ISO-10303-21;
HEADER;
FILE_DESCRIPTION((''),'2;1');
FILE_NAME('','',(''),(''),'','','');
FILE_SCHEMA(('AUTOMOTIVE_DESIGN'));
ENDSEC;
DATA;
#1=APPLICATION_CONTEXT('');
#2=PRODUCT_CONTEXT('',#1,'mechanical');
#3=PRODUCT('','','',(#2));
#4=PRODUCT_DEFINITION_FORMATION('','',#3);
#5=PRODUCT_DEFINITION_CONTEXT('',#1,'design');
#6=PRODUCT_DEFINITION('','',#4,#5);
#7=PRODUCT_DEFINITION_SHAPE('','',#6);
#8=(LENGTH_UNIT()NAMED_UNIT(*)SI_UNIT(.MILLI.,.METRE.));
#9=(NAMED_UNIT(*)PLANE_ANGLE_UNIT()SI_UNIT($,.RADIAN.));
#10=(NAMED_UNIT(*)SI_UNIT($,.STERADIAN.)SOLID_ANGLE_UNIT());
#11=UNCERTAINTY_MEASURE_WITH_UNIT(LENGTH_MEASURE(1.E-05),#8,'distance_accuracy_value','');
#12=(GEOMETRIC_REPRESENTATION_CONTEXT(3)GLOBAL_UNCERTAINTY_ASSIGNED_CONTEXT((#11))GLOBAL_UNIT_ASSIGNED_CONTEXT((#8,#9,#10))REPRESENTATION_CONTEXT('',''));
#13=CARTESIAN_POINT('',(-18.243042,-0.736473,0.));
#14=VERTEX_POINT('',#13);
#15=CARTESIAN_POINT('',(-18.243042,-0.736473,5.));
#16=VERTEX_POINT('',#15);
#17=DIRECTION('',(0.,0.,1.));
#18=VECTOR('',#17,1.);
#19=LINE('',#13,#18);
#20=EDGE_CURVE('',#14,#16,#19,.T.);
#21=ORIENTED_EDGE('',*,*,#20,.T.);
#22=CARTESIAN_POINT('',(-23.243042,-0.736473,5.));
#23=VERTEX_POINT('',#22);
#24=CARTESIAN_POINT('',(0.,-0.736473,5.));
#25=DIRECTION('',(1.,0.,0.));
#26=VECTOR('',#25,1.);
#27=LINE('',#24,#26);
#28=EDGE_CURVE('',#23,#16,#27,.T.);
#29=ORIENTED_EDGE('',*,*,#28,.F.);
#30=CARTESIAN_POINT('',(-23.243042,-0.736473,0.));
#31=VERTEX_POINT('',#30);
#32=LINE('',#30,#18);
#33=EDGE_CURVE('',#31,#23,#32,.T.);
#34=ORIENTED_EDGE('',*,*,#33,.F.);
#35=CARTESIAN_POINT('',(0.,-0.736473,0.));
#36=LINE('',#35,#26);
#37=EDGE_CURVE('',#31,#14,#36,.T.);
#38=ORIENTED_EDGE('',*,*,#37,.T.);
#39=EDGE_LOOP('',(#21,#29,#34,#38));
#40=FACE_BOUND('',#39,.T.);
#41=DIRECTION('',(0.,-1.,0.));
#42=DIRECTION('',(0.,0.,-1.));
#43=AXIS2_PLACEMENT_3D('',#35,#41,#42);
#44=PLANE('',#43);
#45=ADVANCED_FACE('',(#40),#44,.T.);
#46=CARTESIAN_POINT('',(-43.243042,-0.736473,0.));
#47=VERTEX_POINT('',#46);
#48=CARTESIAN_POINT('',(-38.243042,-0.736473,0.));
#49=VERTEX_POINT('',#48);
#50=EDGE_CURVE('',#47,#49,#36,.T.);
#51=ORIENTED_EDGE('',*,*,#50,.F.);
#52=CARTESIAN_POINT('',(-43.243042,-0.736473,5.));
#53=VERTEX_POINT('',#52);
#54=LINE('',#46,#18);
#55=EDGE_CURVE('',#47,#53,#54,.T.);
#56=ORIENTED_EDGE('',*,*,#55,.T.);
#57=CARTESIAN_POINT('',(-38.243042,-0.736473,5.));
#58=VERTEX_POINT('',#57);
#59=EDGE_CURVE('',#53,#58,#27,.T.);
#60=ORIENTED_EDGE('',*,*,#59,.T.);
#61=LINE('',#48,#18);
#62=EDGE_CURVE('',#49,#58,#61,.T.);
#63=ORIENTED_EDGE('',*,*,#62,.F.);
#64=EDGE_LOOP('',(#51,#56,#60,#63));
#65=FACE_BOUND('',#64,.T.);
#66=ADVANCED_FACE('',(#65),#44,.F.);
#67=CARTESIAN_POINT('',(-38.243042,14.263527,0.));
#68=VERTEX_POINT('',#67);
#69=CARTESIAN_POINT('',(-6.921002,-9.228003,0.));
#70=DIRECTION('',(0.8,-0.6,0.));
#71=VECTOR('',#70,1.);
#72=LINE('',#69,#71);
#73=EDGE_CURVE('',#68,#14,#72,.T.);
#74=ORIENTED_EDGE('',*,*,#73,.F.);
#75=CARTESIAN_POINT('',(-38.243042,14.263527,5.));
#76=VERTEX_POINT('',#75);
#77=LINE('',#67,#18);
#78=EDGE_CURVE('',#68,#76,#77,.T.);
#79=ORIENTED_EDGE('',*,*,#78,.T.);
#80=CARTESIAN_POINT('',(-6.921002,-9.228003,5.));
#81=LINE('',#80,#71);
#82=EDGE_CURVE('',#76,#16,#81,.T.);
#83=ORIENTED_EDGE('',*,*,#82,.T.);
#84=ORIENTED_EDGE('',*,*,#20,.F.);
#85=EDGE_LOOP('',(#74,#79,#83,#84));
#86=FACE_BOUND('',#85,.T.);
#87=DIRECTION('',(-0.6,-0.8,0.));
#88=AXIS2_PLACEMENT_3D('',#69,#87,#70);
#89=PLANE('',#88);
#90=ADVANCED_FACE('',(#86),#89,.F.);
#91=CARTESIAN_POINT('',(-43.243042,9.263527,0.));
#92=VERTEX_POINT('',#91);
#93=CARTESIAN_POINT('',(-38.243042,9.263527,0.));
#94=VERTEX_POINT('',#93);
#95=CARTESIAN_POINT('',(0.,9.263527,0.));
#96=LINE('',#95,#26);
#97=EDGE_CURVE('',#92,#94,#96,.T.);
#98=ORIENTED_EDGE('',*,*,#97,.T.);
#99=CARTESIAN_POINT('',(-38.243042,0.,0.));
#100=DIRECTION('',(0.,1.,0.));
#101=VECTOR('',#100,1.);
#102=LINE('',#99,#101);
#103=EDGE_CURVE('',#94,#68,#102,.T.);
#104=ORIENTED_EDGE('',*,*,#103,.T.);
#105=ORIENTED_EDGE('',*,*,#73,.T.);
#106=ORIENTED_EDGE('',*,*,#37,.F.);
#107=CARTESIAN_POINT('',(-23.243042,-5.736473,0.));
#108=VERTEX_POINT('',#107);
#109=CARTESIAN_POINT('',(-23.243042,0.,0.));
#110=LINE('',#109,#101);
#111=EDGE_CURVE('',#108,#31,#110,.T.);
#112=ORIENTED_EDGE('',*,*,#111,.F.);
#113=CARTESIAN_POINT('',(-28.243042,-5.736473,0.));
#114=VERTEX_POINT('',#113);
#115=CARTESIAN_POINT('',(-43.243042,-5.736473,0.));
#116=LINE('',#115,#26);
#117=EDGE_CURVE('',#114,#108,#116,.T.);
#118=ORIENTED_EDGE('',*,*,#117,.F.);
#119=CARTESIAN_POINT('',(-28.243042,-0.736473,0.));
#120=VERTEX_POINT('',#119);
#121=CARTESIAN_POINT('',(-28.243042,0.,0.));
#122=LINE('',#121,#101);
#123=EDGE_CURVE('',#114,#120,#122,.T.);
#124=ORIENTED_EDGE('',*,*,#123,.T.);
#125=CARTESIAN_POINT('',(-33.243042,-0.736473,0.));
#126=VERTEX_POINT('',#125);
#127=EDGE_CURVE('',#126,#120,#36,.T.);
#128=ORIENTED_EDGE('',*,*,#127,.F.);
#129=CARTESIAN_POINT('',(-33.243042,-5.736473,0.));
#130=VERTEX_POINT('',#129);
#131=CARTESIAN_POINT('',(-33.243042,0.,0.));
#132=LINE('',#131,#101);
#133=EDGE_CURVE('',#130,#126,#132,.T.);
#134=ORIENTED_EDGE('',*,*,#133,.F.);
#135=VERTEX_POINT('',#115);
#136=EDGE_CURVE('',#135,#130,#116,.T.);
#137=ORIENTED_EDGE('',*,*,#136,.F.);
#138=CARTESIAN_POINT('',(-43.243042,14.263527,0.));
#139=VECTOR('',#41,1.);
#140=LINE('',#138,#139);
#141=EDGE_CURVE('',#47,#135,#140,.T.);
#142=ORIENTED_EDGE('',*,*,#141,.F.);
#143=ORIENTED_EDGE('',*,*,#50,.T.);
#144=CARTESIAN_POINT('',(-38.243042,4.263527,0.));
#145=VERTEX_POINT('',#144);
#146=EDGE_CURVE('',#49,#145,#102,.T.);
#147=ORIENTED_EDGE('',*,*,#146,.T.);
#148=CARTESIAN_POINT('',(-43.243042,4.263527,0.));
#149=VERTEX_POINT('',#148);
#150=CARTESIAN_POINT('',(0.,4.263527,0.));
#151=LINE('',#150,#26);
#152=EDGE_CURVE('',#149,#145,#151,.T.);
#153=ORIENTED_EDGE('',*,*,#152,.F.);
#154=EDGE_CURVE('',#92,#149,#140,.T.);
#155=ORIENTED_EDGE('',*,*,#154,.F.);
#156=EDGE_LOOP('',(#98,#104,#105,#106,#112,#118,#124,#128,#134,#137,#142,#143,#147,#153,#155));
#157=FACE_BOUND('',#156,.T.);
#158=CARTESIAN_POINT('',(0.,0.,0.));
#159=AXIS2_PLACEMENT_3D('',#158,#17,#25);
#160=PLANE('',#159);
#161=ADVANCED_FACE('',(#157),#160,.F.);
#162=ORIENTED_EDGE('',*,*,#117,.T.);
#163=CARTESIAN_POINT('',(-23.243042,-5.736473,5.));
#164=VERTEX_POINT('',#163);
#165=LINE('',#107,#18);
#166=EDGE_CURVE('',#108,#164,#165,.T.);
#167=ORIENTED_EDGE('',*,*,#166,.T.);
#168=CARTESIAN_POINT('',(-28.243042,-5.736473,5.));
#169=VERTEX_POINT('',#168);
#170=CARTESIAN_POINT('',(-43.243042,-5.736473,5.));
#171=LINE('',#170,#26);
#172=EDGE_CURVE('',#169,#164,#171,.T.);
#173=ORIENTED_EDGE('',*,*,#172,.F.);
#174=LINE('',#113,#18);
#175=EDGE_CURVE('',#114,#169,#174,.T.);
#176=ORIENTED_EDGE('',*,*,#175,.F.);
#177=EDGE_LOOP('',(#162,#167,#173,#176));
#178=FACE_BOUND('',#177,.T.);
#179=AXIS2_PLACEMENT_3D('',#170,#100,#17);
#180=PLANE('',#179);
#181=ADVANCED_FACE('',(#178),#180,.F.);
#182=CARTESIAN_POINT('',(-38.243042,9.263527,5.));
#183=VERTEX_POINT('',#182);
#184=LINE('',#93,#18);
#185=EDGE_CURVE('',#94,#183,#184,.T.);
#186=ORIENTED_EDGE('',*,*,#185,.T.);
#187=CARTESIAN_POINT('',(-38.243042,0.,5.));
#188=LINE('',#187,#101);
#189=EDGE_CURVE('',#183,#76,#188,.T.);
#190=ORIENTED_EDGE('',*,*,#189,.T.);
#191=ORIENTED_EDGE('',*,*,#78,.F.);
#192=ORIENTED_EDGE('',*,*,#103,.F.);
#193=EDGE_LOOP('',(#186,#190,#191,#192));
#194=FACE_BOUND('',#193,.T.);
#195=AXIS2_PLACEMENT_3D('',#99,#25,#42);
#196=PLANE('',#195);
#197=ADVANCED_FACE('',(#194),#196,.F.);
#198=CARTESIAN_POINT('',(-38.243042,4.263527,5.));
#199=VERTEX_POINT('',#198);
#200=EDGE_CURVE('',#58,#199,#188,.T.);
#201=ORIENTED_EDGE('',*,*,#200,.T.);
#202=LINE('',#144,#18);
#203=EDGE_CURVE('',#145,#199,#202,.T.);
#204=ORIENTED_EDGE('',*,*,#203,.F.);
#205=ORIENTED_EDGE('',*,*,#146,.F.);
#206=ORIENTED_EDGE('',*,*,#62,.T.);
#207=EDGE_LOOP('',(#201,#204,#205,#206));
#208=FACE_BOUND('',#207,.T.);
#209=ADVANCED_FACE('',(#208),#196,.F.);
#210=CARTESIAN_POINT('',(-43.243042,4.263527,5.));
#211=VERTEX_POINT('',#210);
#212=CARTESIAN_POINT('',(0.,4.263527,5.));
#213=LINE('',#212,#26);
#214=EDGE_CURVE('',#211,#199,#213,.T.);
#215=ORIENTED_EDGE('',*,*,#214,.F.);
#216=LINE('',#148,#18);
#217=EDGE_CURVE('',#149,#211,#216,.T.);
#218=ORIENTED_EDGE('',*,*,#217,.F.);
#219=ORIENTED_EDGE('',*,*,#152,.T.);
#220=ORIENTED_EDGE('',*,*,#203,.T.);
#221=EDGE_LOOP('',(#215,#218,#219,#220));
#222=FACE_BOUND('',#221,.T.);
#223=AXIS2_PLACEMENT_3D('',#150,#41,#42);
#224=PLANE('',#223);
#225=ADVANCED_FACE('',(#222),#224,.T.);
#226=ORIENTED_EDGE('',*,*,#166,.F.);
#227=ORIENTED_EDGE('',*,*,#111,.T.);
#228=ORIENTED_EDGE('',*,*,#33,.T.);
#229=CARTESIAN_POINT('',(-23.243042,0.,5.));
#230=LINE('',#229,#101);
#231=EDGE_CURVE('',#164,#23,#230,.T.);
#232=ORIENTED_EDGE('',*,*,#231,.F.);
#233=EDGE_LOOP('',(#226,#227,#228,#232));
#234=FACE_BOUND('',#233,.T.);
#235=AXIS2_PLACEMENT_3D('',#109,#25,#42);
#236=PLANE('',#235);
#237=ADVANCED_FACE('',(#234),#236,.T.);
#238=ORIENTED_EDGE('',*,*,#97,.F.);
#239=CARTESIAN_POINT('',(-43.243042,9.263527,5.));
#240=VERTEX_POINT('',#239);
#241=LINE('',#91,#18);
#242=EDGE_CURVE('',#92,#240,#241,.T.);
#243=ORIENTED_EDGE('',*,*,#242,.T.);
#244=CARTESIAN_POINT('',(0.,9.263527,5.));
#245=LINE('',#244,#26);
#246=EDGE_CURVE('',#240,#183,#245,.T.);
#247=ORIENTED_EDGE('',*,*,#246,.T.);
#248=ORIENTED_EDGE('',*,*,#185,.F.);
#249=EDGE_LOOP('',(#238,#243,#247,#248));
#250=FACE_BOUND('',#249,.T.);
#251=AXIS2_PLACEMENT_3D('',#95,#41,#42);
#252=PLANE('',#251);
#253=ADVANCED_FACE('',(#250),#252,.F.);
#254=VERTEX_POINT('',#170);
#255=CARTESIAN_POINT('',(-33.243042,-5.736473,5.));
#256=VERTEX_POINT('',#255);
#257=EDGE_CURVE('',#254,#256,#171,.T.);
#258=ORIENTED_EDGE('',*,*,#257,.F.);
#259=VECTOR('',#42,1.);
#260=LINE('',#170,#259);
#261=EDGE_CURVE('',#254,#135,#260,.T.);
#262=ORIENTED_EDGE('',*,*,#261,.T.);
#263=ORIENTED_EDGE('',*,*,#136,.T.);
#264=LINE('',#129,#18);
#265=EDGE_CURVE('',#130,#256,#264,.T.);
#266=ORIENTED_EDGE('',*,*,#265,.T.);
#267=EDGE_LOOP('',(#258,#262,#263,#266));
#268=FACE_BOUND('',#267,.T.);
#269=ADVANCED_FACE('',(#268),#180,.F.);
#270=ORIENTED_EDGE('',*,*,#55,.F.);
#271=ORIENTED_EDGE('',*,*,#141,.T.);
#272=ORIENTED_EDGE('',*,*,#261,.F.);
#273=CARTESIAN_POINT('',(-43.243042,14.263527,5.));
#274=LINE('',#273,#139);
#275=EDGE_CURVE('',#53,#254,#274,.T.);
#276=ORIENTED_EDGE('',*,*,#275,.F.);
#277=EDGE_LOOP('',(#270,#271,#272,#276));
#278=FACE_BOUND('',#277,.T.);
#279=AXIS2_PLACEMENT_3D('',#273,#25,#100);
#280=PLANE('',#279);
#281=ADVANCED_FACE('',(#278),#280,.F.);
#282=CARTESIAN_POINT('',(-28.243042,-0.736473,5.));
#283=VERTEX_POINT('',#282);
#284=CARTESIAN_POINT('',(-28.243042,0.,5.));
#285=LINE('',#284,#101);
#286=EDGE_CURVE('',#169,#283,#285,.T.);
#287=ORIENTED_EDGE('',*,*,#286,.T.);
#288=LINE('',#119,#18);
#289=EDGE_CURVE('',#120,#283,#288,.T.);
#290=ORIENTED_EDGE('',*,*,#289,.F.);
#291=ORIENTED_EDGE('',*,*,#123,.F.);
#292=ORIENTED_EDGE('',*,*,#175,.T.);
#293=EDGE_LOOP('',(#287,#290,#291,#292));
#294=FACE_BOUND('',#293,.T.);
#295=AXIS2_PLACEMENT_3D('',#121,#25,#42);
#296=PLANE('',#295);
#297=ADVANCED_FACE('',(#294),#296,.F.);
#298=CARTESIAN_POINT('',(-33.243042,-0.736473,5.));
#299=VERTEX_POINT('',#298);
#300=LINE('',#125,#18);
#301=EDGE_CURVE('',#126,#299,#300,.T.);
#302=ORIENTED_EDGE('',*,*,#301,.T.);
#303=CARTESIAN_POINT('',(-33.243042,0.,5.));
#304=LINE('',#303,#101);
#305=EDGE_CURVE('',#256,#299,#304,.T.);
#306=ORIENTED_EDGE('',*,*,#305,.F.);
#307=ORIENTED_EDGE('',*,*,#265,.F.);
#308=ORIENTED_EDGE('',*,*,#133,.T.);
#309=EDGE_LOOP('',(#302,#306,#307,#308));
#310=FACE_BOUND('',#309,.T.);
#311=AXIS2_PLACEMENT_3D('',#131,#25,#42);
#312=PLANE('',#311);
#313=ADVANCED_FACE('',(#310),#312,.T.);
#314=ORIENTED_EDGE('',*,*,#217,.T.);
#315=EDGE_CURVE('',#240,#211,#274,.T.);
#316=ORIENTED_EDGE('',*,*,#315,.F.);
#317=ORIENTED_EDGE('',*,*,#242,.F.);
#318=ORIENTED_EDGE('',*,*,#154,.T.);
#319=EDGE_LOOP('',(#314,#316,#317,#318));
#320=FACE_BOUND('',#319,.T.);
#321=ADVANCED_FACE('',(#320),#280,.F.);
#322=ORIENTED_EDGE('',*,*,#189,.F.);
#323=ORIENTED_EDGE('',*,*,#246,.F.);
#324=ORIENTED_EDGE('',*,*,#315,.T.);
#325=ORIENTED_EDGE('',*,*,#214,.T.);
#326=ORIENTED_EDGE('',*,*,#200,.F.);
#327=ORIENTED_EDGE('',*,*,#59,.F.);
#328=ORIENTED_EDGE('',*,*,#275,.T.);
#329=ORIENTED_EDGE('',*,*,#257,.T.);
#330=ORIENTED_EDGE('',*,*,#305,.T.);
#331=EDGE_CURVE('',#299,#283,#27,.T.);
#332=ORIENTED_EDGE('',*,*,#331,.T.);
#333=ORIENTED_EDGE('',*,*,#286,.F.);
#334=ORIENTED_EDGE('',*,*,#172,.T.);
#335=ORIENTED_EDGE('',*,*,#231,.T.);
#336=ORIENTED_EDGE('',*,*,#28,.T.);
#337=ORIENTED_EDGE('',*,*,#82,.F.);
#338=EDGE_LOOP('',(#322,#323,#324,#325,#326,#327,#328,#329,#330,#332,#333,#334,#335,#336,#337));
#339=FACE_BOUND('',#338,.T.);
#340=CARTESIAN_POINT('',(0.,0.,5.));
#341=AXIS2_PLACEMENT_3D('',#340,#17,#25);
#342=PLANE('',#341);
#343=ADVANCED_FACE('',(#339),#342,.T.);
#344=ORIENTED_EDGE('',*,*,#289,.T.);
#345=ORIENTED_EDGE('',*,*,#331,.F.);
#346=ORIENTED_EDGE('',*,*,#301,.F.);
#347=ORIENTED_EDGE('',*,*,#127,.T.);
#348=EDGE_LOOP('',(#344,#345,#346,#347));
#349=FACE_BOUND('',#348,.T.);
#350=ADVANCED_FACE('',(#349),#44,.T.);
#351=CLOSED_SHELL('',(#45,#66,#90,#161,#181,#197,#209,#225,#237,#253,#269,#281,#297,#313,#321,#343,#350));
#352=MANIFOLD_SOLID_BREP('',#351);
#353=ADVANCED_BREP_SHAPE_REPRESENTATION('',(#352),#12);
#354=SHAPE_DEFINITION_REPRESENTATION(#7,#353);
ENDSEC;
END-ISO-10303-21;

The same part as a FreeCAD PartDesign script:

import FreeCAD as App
import Part
import Sketcher
Q = App.Units.Quantity

doc = App.newDocument("Part")
body = doc.addObject("PartDesign::Body", "Body")

# Sketch on XY plane
sketch1 = body.newObject("Sketcher::SketchObject", "Sketch")
sketch1.AttachmentSupport = (doc.getObject("XY_Plane"), [""])
sketch1.MapMode = "FlatFace"
sketch1.addGeometry([
    Part.LineSegment(App.Vector(-43, 14, 0), App.Vector(-43, -6, 0)),
    Part.LineSegment(App.Vector(-43, -6, 0), App.Vector(-18, -6, 0)),
    Part.LineSegment(App.Vector(-18, -6, 0), App.Vector(-18, 14, 0)),
    Part.LineSegment(App.Vector(-18, 14, 0), App.Vector(-43, 14, 0)),
], False)
sketch1.addConstraint([
    Sketcher.Constraint("Coincident", 0, 2, 1, 1),
    Sketcher.Constraint("Coincident", 1, 2, 2, 1),
    Sketcher.Constraint("Coincident", 2, 2, 3, 1),
    Sketcher.Constraint("Coincident", 3, 2, 0, 1),
    Sketcher.Constraint("Vertical", 0),
    Sketcher.Constraint("Horizontal", 1),
    Sketcher.Constraint("Vertical", 2),
    Sketcher.Constraint("Horizontal", 3),
    Sketcher.Constraint("DistanceX", 1, 1, 1, 2, Q("25 mm")),
    Sketcher.Constraint("DistanceY", 0, 2, 0, 1, Q("20 mm")),
    Sketcher.Constraint("DistanceX", 0, 2, -1, 1, Q("43.243042 mm")),
    Sketcher.Constraint("DistanceY", 0, 2, -1, 1, Q("5.736473 mm")),
])
pad1 = body.newObject("PartDesign::Pad", "Pad")
pad1.Profile = sketch1
pad1.Length = 5

# Sketch on XY plane
sketch2 = body.newObject("Sketcher::SketchObject", "Sketch001")
sketch2.AttachmentSupport = (doc.getObject("XY_Plane"), [""])
sketch2.MapMode = "FlatFace"
sketch2.AttachmentOffset = App.Placement(App.Vector(0, 0, 5), App.Rotation())
sketch2.addGeometry([
    Part.LineSegment(App.Vector(-38.2, 14.3, 0), App.Vector(-18.2, -0.7, 0)),  # 0
    Part.LineSegment(App.Vector(-18.2, -0.7, 0), App.Vector(-18.2, 14.3, 0)),  # 1
    Part.LineSegment(App.Vector(-18.2, 14.3, 0), App.Vector(-38.2, 14.3, 0)),  # 2
    Part.LineSegment(App.Vector(-43.2, 14.3, 0), App.Vector(-43.2, 9.3, 0)),  # 3
    Part.LineSegment(App.Vector(-43.2, 9.3, 0), App.Vector(-38.2, 9.3, 0)),  # 4
    Part.LineSegment(App.Vector(-38.2, 9.3, 0), App.Vector(-38.2, 14.3, 0)),  # 5
    Part.LineSegment(App.Vector(-38.2, 14.3, 0), App.Vector(-43.2, 14.3, 0)),  # 6
    Part.LineSegment(App.Vector(-43.2, 4.3, 0), App.Vector(-43.2, -0.7, 0)),  # 7
    Part.LineSegment(App.Vector(-43.2, -0.7, 0), App.Vector(-38.2, -0.7, 0)),  # 8
    Part.LineSegment(App.Vector(-38.2, -0.7, 0), App.Vector(-38.2, 4.3, 0)),  # 9
    Part.LineSegment(App.Vector(-38.2, 4.3, 0), App.Vector(-43.2, 4.3, 0)),  # 10
    Part.LineSegment(App.Vector(-33.2, -0.7, 0), App.Vector(-33.2, -5.7, 0)),  # 11
    Part.LineSegment(App.Vector(-33.2, -5.7, 0), App.Vector(-28.2, -5.7, 0)),  # 12
    Part.LineSegment(App.Vector(-28.2, -5.7, 0), App.Vector(-28.2, -0.7, 0)),  # 13
    Part.LineSegment(App.Vector(-28.2, -0.7, 0), App.Vector(-33.2, -0.7, 0)),  # 14
    Part.LineSegment(App.Vector(-23.2, -0.7, 0), App.Vector(-23.2, -5.7, 0)),  # 15
    Part.LineSegment(App.Vector(-23.2, -5.7, 0), App.Vector(-18.2, -5.7, 0)),  # 16
    Part.LineSegment(App.Vector(-18.2, -5.7, 0), App.Vector(-18.2, -0.7, 0)),  # 17
    Part.LineSegment(App.Vector(-18.2, -0.7, 0), App.Vector(-23.2, -0.7, 0)),  # 18
], False)
sketch2.addConstraint([
    Sketcher.Constraint("Coincident", 0, 2, 1, 1),
    Sketcher.Constraint("Coincident", 1, 2, 2, 1),
    Sketcher.Constraint("Coincident", 2, 2, 0, 1),
    Sketcher.Constraint("Coincident", 3, 2, 4, 1),
    Sketcher.Constraint("Coincident", 4, 2, 5, 1),
    Sketcher.Constraint("Coincident", 5, 2, 6, 1),
    Sketcher.Constraint("Coincident", 6, 2, 3, 1),
    Sketcher.Constraint("Coincident", 7, 2, 8, 1),
    Sketcher.Constraint("Coincident", 8, 2, 9, 1),
    Sketcher.Constraint("Coincident", 9, 2, 10, 1),
    Sketcher.Constraint("Coincident", 10, 2, 7, 1),
    Sketcher.Constraint("Coincident", 11, 2, 12, 1),
    Sketcher.Constraint("Coincident", 12, 2, 13, 1),
    Sketcher.Constraint("Coincident", 13, 2, 14, 1),
    Sketcher.Constraint("Coincident", 14, 2, 11, 1),
    Sketcher.Constraint("Coincident", 15, 2, 16, 1),
    Sketcher.Constraint("Coincident", 16, 2, 17, 1),
    Sketcher.Constraint("Coincident", 17, 2, 18, 1),
    Sketcher.Constraint("Coincident", 18, 2, 15, 1),
    Sketcher.Constraint("Vertical", 1),
    Sketcher.Constraint("Horizontal", 2),
    Sketcher.Constraint("Vertical", 3),
    Sketcher.Constraint("Horizontal", 4),
    Sketcher.Constraint("Vertical", 5),
    Sketcher.Constraint("Horizontal", 6),
    Sketcher.Constraint("Vertical", 7),
    Sketcher.Constraint("Horizontal", 8),
    Sketcher.Constraint("Vertical", 9),
    Sketcher.Constraint("Horizontal", 10),
    Sketcher.Constraint("Vertical", 11),
    Sketcher.Constraint("Horizontal", 12),
    Sketcher.Constraint("Vertical", 13),
    Sketcher.Constraint("Horizontal", 14),
    Sketcher.Constraint("Vertical", 15),
    Sketcher.Constraint("Horizontal", 16),
    Sketcher.Constraint("Vertical", 17),
    Sketcher.Constraint("Horizontal", 18),
    Sketcher.Constraint("Coincident", 5, 2, 2, 2),
    Sketcher.Constraint("Coincident", 17, 2, 0, 2),
    Sketcher.Constraint("Horizontal", 0, 2, 7, 2),
    Sketcher.Constraint("Horizontal", 8, 2, 13, 2),
    Sketcher.Constraint("Horizontal", 12, 2, 15, 2),
    Sketcher.Constraint("Vertical", 6, 2, 7, 2),
    Sketcher.Constraint("Vertical", 5, 2, 8, 2),
    Sketcher.Constraint("Equal", 10, 12),
    Sketcher.Constraint("Equal", 14, 16),
    Sketcher.Constraint("Equal", 18, 3),
    Sketcher.Constraint("Equal", 5, 7),
    Sketcher.Constraint("Equal", 9, 11),
    Sketcher.Constraint("DistanceX", 2, 2, 2, 1, Q("20 mm")),
    Sketcher.Constraint("DistanceX", 4, 1, 4, 2, Q("5 mm")),
    Sketcher.Constraint("DistanceY", 1, 1, 1, 2, Q("15 mm")),
    Sketcher.Constraint("DistanceX", 8, 2, 11, 2, Q("5 mm")),
    Sketcher.Constraint("DistanceX", 0, 2, -1, 1, Q("18.243042 mm")),
    Sketcher.Constraint("DistanceY", 0, 2, -1, 1, Q("0.736473 mm")),
])
pocket1 = body.newObject("PartDesign::Pocket", "Pocket")
pocket1.Profile = sketch2
pocket1.Length = 5

doc.recompute()
